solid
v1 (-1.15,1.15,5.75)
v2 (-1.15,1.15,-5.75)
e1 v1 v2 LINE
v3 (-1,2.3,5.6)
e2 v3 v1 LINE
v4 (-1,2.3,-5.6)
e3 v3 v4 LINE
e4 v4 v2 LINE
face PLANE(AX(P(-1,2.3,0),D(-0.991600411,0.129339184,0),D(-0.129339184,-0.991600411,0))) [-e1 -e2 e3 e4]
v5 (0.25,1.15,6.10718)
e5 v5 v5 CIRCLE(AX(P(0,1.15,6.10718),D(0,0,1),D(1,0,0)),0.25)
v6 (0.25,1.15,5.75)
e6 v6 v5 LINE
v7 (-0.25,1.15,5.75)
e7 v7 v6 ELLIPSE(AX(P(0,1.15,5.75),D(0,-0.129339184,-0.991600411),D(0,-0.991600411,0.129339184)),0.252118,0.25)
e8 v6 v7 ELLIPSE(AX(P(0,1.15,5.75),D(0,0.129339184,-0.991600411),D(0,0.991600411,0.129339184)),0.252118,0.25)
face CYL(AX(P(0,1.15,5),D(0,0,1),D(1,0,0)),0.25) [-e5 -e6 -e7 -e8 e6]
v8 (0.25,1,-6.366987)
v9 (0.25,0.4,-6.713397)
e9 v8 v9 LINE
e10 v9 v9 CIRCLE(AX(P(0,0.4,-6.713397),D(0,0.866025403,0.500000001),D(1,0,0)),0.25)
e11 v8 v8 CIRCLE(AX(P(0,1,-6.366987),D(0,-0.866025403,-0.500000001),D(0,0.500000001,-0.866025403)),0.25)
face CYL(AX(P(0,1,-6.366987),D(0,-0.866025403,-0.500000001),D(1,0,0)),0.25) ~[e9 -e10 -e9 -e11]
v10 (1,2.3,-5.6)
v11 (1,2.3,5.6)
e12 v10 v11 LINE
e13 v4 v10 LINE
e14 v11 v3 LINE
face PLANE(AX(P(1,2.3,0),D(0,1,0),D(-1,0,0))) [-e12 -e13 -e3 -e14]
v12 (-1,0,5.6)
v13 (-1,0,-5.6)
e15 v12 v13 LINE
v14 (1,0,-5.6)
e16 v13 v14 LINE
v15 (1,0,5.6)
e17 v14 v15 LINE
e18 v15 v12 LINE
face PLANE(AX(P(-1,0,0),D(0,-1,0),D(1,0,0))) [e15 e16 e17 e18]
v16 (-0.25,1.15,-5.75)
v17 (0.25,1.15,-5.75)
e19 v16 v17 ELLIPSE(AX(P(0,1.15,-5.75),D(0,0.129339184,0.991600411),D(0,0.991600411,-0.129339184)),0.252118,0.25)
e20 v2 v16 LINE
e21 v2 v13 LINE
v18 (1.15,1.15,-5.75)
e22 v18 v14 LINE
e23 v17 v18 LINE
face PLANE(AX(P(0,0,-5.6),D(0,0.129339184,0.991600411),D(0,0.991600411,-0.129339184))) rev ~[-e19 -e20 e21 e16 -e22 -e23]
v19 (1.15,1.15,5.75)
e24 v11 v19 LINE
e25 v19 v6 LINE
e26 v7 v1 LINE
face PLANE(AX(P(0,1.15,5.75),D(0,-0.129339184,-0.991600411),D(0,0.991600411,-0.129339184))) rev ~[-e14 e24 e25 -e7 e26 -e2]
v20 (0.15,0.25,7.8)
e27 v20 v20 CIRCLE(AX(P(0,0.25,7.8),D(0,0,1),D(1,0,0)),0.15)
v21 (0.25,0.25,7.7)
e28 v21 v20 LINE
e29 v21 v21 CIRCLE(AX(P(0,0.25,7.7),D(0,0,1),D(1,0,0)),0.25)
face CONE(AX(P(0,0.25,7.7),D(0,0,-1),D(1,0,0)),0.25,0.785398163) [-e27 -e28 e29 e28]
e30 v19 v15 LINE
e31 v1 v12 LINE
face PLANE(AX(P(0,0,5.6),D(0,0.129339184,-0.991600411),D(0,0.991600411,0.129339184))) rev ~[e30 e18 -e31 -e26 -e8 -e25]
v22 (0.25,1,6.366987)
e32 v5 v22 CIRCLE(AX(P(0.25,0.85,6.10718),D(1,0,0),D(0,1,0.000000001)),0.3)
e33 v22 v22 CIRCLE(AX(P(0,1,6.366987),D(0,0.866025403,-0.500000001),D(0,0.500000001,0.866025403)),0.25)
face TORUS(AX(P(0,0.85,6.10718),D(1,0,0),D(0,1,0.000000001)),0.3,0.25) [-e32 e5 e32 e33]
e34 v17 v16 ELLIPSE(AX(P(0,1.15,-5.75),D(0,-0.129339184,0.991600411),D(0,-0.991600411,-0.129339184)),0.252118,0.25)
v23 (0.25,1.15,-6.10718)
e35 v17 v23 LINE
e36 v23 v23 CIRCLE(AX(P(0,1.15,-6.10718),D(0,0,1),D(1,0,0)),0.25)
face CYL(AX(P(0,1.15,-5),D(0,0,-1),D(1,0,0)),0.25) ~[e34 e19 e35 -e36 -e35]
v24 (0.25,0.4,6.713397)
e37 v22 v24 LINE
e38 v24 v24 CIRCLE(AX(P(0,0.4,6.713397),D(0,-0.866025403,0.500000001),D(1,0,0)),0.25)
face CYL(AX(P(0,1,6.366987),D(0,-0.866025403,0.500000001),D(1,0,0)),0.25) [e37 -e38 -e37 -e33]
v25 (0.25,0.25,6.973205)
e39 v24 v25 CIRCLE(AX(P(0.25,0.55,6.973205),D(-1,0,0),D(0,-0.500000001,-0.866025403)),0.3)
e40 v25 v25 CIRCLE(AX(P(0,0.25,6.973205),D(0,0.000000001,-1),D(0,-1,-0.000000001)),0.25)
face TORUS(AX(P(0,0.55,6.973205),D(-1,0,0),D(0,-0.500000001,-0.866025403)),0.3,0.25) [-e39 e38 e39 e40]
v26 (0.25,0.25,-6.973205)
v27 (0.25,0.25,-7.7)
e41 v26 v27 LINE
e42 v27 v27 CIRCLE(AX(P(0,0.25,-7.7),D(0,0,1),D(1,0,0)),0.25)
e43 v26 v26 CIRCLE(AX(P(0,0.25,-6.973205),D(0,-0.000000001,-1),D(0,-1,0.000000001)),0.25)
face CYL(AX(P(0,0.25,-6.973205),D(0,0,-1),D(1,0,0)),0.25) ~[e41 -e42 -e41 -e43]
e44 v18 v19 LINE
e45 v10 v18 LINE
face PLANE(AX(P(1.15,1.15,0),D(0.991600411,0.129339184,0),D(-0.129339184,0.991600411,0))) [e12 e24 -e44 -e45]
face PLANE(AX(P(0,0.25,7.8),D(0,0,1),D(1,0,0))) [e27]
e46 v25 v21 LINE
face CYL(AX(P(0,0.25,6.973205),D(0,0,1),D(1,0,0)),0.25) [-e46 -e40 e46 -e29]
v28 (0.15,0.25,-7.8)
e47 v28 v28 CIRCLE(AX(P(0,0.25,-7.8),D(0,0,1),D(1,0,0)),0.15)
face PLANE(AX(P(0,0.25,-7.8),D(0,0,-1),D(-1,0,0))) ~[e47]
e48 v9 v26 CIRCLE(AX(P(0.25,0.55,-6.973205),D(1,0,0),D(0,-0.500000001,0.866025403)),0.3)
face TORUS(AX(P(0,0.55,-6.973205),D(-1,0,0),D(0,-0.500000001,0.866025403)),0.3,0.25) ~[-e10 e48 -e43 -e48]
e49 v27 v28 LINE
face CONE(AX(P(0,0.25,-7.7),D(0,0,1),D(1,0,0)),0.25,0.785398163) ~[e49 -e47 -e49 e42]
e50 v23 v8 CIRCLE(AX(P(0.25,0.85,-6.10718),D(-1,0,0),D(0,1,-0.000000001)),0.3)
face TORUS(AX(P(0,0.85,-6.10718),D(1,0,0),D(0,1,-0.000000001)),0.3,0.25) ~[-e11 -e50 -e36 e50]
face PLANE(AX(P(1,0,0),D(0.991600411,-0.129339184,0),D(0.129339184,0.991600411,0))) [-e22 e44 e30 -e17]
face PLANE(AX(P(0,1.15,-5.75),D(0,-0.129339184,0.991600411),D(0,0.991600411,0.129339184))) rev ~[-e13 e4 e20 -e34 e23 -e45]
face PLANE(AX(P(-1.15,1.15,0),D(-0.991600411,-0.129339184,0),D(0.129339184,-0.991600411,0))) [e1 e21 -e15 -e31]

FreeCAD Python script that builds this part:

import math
import FreeCAD as App
import Part
import Sketcher

V = App.Vector
Q = App.Units.Quantity


def edges_at(feature, points):
    """Names of the edges that pass closest to the given points."""
    edges = feature.Shape.Edges
    near = lambda p: min(range(len(edges)), key=lambda i: edges[i].distToShape(Part.Vertex(*p))[0])
    return sorted({f"Edge{near(p) + 1}" for p in points})

doc = App.newDocument("Part")
body = doc.addObject("PartDesign::Body", "Body")

sketch1 = body.newObject("Sketcher::SketchObject", "Sketch")
sketch1.AttachmentSupport = (doc.getObject("XY_Plane"), [""])
sketch1.MapMode = "FlatFace"
sketch1.addGeometry([
    Part.LineSegment(V(-1, 0, 0), V(1, 0, 0)),
    Part.LineSegment(V(1, 0, 0), V(1.1, 1.1, 0)),
    Part.LineSegment(V(1.1, 1.1, 0), V(1, 2.3, 0)),
    Part.LineSegment(V(1, 2.3, 0), V(-1, 2.3, 0)),
    Part.LineSegment(V(-1, 2.3, 0), V(-1.1, 1.1, 0)),
    Part.LineSegment(V(-1.1, 1.1, 0), V(-1, 0, 0)),
], False)
sketch1.addConstraint([
    Sketcher.Constraint("Coincident", 0, 2, 1, 1),
    Sketcher.Constraint("Coincident", 1, 2, 2, 1),
    Sketcher.Constraint("Coincident", 2, 2, 3, 1),
    Sketcher.Constraint("Coincident", 3, 2, 4, 1),
    Sketcher.Constraint("Coincident", 4, 2, 5, 1),
    Sketcher.Constraint("Coincident", 5, 2, 0, 1),
    Sketcher.Constraint("Horizontal", 0),
    Sketcher.Constraint("Horizontal", 3),
    Sketcher.Constraint("Symmetric", 0, 2, 5, 2, -1, 1),
    Sketcher.Constraint("Symmetric", 1, 2, 4, 2, -2),
    Sketcher.Constraint("Parallel", 1, 4),
    Sketcher.Constraint("Parallel", 2, 5),
    Sketcher.Constraint("Vertical", 0, 2, 2, 2),
    Sketcher.Constraint("DistanceX", 0, 1, 0, 2, 2.0),
    Sketcher.Constraint("DistanceY", -1, 1, 2, 2, 2.3),
    Sketcher.Constraint("DistanceX", 4, 2, 1, 2, 2.3),
])
pad1 = body.newObject("PartDesign::Pad", "Pad")
pad1.Profile = sketch1
pad1.Length = 11.5
pad1.Midplane = True

sketch2 = body.newObject("Sketcher::SketchObject", "Sketch001")
sketch2.AttachmentSupport = (doc.getObject("YZ_Plane"), [""])
sketch2.MapMode = "FlatFace"
sketch2.addGeometry([
    Part.LineSegment(V(2.3, -5.6, 0), V(1.1, -5.8, 0)),
    Part.LineSegment(V(1.1, -5.8, 0), V(0, -5.6, 0)),
    Part.LineSegment(V(0, -5.6, 0), V(0, -6.6, 0)),
    Part.LineSegment(V(0, -6.6, 0), V(2.3, -6.6, 0)),
    Part.LineSegment(V(2.3, -6.6, 0), V(2.3, -5.6, 0)),
    Part.LineSegment(V(0, 5.6, 0), V(1.1, 5.8, 0)),
    Part.LineSegment(V(1.1, 5.8, 0), V(2.3, 5.6, 0)),
    Part.LineSegment(V(2.3, 5.6, 0), V(2.3, 6.6, 0)),
    Part.LineSegment(V(2.3, 6.6, 0), V(0, 6.6, 0)),
    Part.LineSegment(V(0, 6.6, 0), V(0, 5.6, 0)),
], False)
sketch2.addConstraint([
    Sketcher.Constraint("Coincident", 0, 2, 1, 1),
    Sketcher.Constraint("Coincident", 1, 2, 2, 1),
    Sketcher.Constraint("Coincident", 2, 2, 3, 1),
    Sketcher.Constraint("Coincident", 3, 2, 4, 1),
    Sketcher.Constraint("Coincident", 4, 2, 0, 1),
    Sketcher.Constraint("Coincident", 5, 2, 6, 1),
    Sketcher.Constraint("Coincident", 6, 2, 7, 1),
    Sketcher.Constraint("Coincident", 7, 2, 8, 1),
    Sketcher.Constraint("Coincident", 8, 2, 9, 1),
    Sketcher.Constraint("Coincident", 9, 2, 5, 1),
    Sketcher.Constraint("Vertical", 2),
    Sketcher.Constraint("Horizontal", 3),
    Sketcher.Constraint("Vertical", 4),
    Sketcher.Constraint("Vertical", 7),
    Sketcher.Constraint("Horizontal", 8),
    Sketcher.Constraint("Vertical", 9),
    Sketcher.Constraint("Symmetric", 2, 2, 8, 2, -1, 1),
    Sketcher.Constraint("Symmetric", 0, 2, 5, 2, -1),
    Sketcher.Constraint("Symmetric", 4, 2, 6, 2, -1),
    Sketcher.Constraint("Symmetric", 1, 2, 9, 2, -1),
    Sketcher.Constraint("Parallel", 0, 5),
    Sketcher.Constraint("Horizontal", 1, 2, 4, 2),
    Sketcher.Constraint("DistanceY", 2, 2, 2, 1, 1.0),
    Sketcher.Constraint("DistanceX", 3, 1, 3, 2, 2.3),
    Sketcher.Constraint("DistanceY", 1, 2, -1, 1, 5.6),
    Sketcher.Constraint("DistanceY", 0, 2, 5, 2, 11.5),
])
pocket1 = body.newObject("PartDesign::Pocket", "Pocket")
pocket1.Profile = sketch2
pocket1.Type = "ThroughAll"
pocket1.Midplane = True

sketch3 = body.newObject("Sketcher::SketchObject", "Sketch002")
sketch3.AttachmentSupport = (doc.getObject("XY_Plane"), [""])
sketch3.MapMode = "FlatFace"
sketch3.AttachmentOffset = App.Placement(V(0, 0, 5), App.Rotation())
sketch3.addGeometry(Part.Circle(V(0, 1.15, 0), V(0, 0, 1), 0.25), False)
sketch3.addConstraint([
    Sketcher.Constraint("PointOnObject", 0, 3, -2),
    Sketcher.Constraint("Diameter", 0, 0.5),
    Sketcher.Constraint("DistanceY", -1, 1, 0, 3, 1.15),
])

sketch4 = body.newObject("Sketcher::SketchObject", "Sketch003")
sketch4.AttachmentSupport = (doc.getObject("YZ_Plane"), [""])
sketch4.MapMode = "FlatFace"
sketch4.addGeometry([
    Part.LineSegment(V(1.15, 5, 0), V(1.15, 6.11, 0)),
    Part.ArcOfCircle(Part.Circle(V(0.85, 6.11, 0), V(0, 0, 1), 0.3), math.radians(0), math.radians(60)),
    Part.LineSegment(V(1, 6.37, 0), V(0.4, 6.71, 0)),
    Part.ArcOfCircle(Part.Circle(V(0.55, 6.97, 0), V(0, 0, 1), 0.3), math.radians(180), math.radians(240)),
    Part.LineSegment(V(0.25, 6.97, 0), V(0.25, 7.8, 0)),
], False)
sketch4.addConstraint([
    Sketcher.Constraint("Tangent", 0, 2, 1, 1),
    Sketcher.Constraint("Tangent", 1, 2, 2, 1),
    Sketcher.Constraint("Tangent", 2, 2, 3, 2),
    Sketcher.Constraint("Tangent", 3, 1, 4, 1),
    Sketcher.Constraint("Vertical", 0),
    Sketcher.Constraint("Vertical", 4),
    Sketcher.Constraint("Equal", 1, 3),
    Sketcher.Constraint("Radius", 1, 0.3),
    Sketcher.Constraint("Angle", 2, Q("150 deg")),
    Sketcher.Constraint("DistanceY", -1, 1, 0, 1, 5.0),
    Sketcher.Constraint("DistanceX", -1, 1, 1, 2, 1.0),
    Sketcher.Constraint("DistanceX", -1, 1, 2, 2, 0.4),
    Sketcher.Constraint("DistanceY", -1, 1, 4, 2, 7.8),
    Sketcher.Constraint("DistanceY", 0, 1, 0, 2, 1.10718),
])
doc.recompute()

additivepipe = body.newObject("PartDesign::AdditivePipe", "AdditivePipe")
additivepipe.Profile = sketch3
additivepipe.Spine = (sketch4, ["Edge1", "Edge2", "Edge3", "Edge4", "Edge5"])
doc.recompute()

mirrored = body.newObject("PartDesign::Mirrored", "Mirrored")
mirrored.Originals = [additivepipe]
mirrored.MirrorPlane = (doc.getObject("XY_Plane"), [""])
body.Tip = mirrored
doc.recompute()

chamfer = body.newObject("PartDesign::Chamfer", "Chamfer")
chamfer.Base = (mirrored, edges_at(mirrored, [(-0.25, 0.25, 7.8), (-0.25, 0.25, -7.8)]))
chamfer.Size = 0.1

doc.recompute()
